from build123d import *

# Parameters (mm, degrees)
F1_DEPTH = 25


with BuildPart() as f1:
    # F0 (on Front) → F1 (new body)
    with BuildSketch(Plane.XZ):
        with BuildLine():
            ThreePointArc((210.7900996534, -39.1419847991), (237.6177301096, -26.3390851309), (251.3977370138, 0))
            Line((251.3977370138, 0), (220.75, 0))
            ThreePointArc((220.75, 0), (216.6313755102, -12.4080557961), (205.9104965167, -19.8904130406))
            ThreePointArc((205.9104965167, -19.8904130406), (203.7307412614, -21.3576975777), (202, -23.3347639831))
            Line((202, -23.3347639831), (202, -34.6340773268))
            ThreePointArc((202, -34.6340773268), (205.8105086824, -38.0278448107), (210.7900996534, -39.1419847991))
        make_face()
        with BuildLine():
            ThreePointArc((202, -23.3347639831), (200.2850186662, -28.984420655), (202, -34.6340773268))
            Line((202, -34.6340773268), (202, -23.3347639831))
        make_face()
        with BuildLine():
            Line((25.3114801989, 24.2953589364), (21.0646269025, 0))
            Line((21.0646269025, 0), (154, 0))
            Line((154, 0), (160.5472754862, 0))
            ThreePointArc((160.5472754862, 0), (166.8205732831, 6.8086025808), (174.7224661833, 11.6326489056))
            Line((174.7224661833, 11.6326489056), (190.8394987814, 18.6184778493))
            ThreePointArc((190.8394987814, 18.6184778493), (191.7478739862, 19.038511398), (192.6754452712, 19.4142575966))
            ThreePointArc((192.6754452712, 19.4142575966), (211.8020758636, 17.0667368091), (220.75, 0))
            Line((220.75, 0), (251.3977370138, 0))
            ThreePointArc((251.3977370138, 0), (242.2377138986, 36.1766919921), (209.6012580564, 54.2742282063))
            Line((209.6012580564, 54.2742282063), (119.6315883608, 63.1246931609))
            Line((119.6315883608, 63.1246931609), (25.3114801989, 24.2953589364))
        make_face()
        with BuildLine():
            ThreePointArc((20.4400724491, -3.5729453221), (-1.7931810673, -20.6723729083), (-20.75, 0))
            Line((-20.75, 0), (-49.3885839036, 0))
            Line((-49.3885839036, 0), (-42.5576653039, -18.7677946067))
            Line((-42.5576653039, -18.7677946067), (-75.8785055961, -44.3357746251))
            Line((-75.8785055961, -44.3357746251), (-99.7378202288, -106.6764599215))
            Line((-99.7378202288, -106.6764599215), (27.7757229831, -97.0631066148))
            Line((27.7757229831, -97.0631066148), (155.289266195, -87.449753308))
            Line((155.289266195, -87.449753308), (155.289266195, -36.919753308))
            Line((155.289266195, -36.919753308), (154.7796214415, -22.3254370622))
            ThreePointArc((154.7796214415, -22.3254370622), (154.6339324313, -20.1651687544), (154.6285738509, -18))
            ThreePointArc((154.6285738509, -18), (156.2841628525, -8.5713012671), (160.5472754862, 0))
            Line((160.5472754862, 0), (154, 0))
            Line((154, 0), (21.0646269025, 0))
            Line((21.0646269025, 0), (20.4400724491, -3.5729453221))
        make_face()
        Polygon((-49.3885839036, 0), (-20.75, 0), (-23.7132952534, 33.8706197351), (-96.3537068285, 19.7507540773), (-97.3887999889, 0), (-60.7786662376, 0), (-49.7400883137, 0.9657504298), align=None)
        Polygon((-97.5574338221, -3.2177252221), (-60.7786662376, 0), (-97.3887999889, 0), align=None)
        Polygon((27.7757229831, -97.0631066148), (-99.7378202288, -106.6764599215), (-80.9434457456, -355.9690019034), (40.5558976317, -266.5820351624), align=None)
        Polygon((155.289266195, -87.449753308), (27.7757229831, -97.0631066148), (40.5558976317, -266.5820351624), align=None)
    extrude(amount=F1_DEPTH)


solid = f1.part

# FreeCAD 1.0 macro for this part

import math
import FreeCAD as App
import Part
import Sketcher

V = App.Vector
Q = App.Units.Quantity

doc = App.newDocument("Part")
body = doc.addObject("PartDesign::Body", "Body")

sketch1 = doc.addObject("Sketcher::SketchObject", "Sketch")
body.addObject(sketch1)
sketch1.AttachmentSupport = (doc.XZ_Plane, [""])
sketch1.MapMode = "FlatFace"
sketch1.addGeometry(Part.ArcOfCircle(Part.Circle(V(205, 7.5, 0), V(0, 0, 1), 47), math.radians(-83), math.radians(-9)), False)
sketch1.addGeometry(Part.ArcOfCircle(Part.Circle(V(205, 7.5, 0), V(0, 0, 1), 47), math.radians(-9), math.radians(84)), False)
sketch1.addGeometry(Part.LineSegment(V(209.6, 54.3, 0), V(119.6, 63.1, 0)), False)
sketch1.addGeometry(Part.LineSegment(V(119.6, 63.1, 0), V(25.3, 24.3, 0)), False)
sketch1.addGeometry(Part.LineSegment(V(25.3, 24.3, 0), V(21.1, 0, 0)), False)
sketch1.addGeometry(Part.LineSegment(V(21.1, 0, 0), V(20.4, -3.6, 0)), False)
sketch1.addGeometry(Part.ArcOfCircle(Part.Circle(V(0, 0, 0), V(0, 0, 1), 20.8), math.radians(180), math.radians(350)), False)
sketch1.addGeometry(Part.LineSegment(V(-20.8, 0, 0), V(-23.7, 33.9, 0)), False)
sketch1.addGeometry(Part.LineSegment(V(-23.7, 33.9, 0), V(-96.4, 19.8, 0)), False)
sketch1.addGeometry(Part.LineSegment(V(-96.4, 19.8, 0), V(-97.4, 0, 0)), False)
sketch1.addGeometry(Part.LineSegment(V(-97.4, 0, 0), V(-97.6, -3.2, 0)), False)
sketch1.addGeometry(Part.LineSegment(V(-97.6, -3.2, 0), V(-49.7, 1, 0)), False)
sketch1.addGeometry(Part.LineSegment(V(-49.7, 1, 0), V(-49.4, 0, 0)), False)
sketch1.addGeometry(Part.LineSegment(V(-49.4, 0, 0), V(-42.6, -18.8, 0)), False)
sketch1.addGeometry(Part.LineSegment(V(-42.6, -18.8, 0), V(-75.9, -44.3, 0)), False)
sketch1.addGeometry(Part.LineSegment(V(-75.9, -44.3, 0), V(-99.7, -106.7, 0)), False)
sketch1.addGeometry(Part.LineSegment(V(-99.7, -106.7, 0), V(-80.9, -356, 0)), False)
sketch1.addGeometry(Part.LineSegment(V(-80.9, -356, 0), V(40.6, -266.6, 0)), False)
sketch1.addGeometry(Part.LineSegment(V(40.6, -266.6, 0), V(155.3, -87.4, 0)), False)
sketch1.addGeometry(Part.LineSegment(V(155.3, -87.4, 0), V(155.3, -36.9, 0)), False)
sketch1.addGeometry(Part.LineSegment(V(155.3, -36.9, 0), V(154.8, -22.3, 0)), False)
sketch1.addGeometry(Part.ArcOfCircle(Part.Circle(V(188, -19, 0), V(0, 0, 1), 33.4), math.radians(178.28), math.radians(185.72)), False)
sketch1.addGeometry(Part.ArcOfCircle(Part.Circle(V(188, -19, 0), V(0, 0, 1), 33.4), math.radians(145), math.radians(178)), False)
sketch1.addGeometry(Part.ArcOfCircle(Part.Circle(V(188, -19, 0), V(0, 0, 1), 33.4), math.radians(113), math.radians(145)), False)
sketch1.addGeometry(Part.LineSegment(V(174.7, 11.6, 0), V(190.8, 18.6, 0)), False)
sketch1.addGeometry(Part.ArcOfCircle(Part.Circle(V(200, 0, 0), V(0, 0, 1), 20.8), math.radians(110.67), math.radians(116.2)), False)
sketch1.addGeometry(Part.ArcOfCircle(Part.Circle(V(200, 0, 0), V(0, 0, 1), 20.8), math.radians(0), math.radians(111)), False)
sketch1.addGeometry(Part.ArcOfCircle(Part.Circle(V(200, 0, 0), V(0, 0, 1), 20.8), math.radians(-73), math.radians(0)), False)
sketch1.addGeometry(Part.ArcOfCircle(Part.Circle(V(210.4, -29, 0), V(0, 0, 1), 10.2), math.radians(117), math.radians(214)), False)
sketch1.addGeometry(Part.ArcOfCircle(Part.Circle(V(210.4, -29, 0), V(0, 0, 1), 10.2), math.radians(-146), math.radians(-88)), False)
sketch1.addConstraint(Sketcher.Constraint("Tangent", 0, 2, 1, 1))
sketch1.addConstraint(Sketcher.Constraint("Tangent", 1, 2, 2, 1))
sketch1.addConstraint(Sketcher.Constraint("Coincident", 2, 2, 3, 1))
sketch1.addConstraint(Sketcher.Constraint("Coincident", 3, 2, 4, 1))
sketch1.addConstraint(Sketcher.Constraint("Coincident", 4, 2, 5, 1))
sketch1.addConstraint(Sketcher.Constraint("Tangent", 5, 2, 6, 2))
sketch1.addConstraint(Sketcher.Constraint("Coincident", 6, 1, 7, 1))
sketch1.addConstraint(Sketcher.Constraint("Coincident", 7, 2, 8, 1))
sketch1.addConstraint(Sketcher.Constraint("Coincident", 8, 2, 9, 1))
sketch1.addConstraint(Sketcher.Constraint("Coincident", 9, 2, 10, 1))
sketch1.addConstraint(Sketcher.Constraint("Coincident", 10, 2, 11, 1))
sketch1.addConstraint(Sketcher.Constraint("Coincident", 11, 2, 12, 1))
sketch1.addConstraint(Sketcher.Constraint("Coincident", 12, 2, 13, 1))
sketch1.addConstraint(Sketcher.Constraint("Coincident", 13, 2, 14, 1))
sketch1.addConstraint(Sketcher.Constraint("Coincident", 14, 2, 15, 1))
sketch1.addConstraint(Sketcher.Constraint("Coincident", 15, 2, 16, 1))
sketch1.addConstraint(Sketcher.Constraint("Coincident", 16, 2, 17, 1))
sketch1.addConstraint(Sketcher.Constraint("Coincident", 17, 2, 18, 1))
sketch1.addConstraint(Sketcher.Constraint("Coincident", 18, 2, 19, 1))
sketch1.addConstraint(Sketcher.Constraint("Coincident", 19, 2, 20, 1))
sketch1.addConstraint(Sketcher.Constraint("Coincident", 20, 2, 21, 2))
sketch1.addConstraint(Sketcher.Constraint("Tangent", 21, 1, 22, 2))
sketch1.addConstraint(Sketcher.Constraint("Tangent", 22, 1, 23, 2))
sketch1.addConstraint(Sketcher.Constraint("Tangent", 23, 1, 24, 1))
sketch1.addConstraint(Sketcher.Constraint("Coincident", 24, 2, 25, 2))
sketch1.addConstraint(Sketcher.Constraint("Tangent", 25, 1, 26, 2))
sketch1.addConstraint(Sketcher.Constraint("Tangent", 26, 1, 27, 2))
sketch1.addConstraint(Sketcher.Constraint("Coincident", 27, 1, 28, 1))
sketch1.addConstraint(Sketcher.Constraint("Tangent", 28, 2, 29, 1))
sketch1.addConstraint(Sketcher.Constraint("Coincident", 29, 2, 0, 1))
sketch1.addConstraint(Sketcher.Constraint("Vertical", 19))
sketch1.addConstraint(Sketcher.Constraint("Coincident", 6, 3, -1, 1))
sketch1.addConstraint(Sketcher.Constraint("Coincident", 23, 3, 21, 3))
sketch1.addConstraint(Sketcher.Constraint("Coincident", 27, 3, 25, 3))
sketch1.addConstraint(Sketcher.Constraint("Equal", 0, 1))
sketch1.addConstraint(Sketcher.Constraint("Equal", 6, 25))
sketch1.addConstraint(Sketcher.Constraint("Equal", 28, 29))
sketch1.addConstraint(Sketcher.Constraint("PointOnObject", 25, 3, -1))
sketch1.addConstraint(Sketcher.Constraint("PointOnObject", 0, 2, -1))
sketch1.addConstraint(Sketcher.Constraint("PointOnObject", 4, 2, -1))
sketch1.addConstraint(Sketcher.Constraint("PointOnObject", 6, 1, -1))
sketch1.addConstraint(Sketcher.Constraint("PointOnObject", 9, 2, -1))
sketch1.addConstraint(Sketcher.Constraint("PointOnObject", 12, 2, -1))
sketch1.addConstraint(Sketcher.Constraint("PointOnObject", 22, 1, -1))
sketch1.addConstraint(Sketcher.Constraint("PointOnObject", 26, 1, -1))
sketch1.addConstraint(Sketcher.Constraint("Parallel", 4, 5))
sketch1.addConstraint(Sketcher.Constraint("Parallel", 9, 10))
sketch1.addConstraint(Sketcher.Constraint("Perpendicular", 7, 11))
sketch1.addConstraint(Sketcher.Constraint("Parallel", 12, 13))
sketch1.addConstraint(Sketcher.Constraint("Radius", 0, 47.0))
sketch1.addConstraint(Sketcher.Constraint("Angle", 7, Q("95 deg")))
sketch1.addConstraint(Sketcher.Constraint("Angle", 8, Q("-169 deg")))
sketch1.addConstraint(Sketcher.Constraint("Angle", 9, Q("-93 deg")))
sketch1.addConstraint(Sketcher.Constraint("Angle", 12, Q("-70 deg")))
sketch1.addConstraint(Sketcher.Constraint("Angle", 20, Q("92 deg")))
sketch1.addConstraint(Sketcher.Constraint("Radius", 6, 20.75))
sketch1.addConstraint(Sketcher.Constraint("Distance", 3, 102.0))
sketch1.addConstraint(Sketcher.Constraint("Distance", 7, 34.0))
sketch1.addConstraint(Sketcher.Constraint("Distance", 8, 74.0))
sketch1.addConstraint(Sketcher.Constraint("Distance", 11, 48.0))
sketch1.addConstraint(Sketcher.Constraint("Distance", 14, 42.0))
sketch1.addConstraint(Sketcher.Constraint("Distance", 16, 250.0))
sketch1.addConstraint(Sketcher.Constraint("DistanceX", -1, 1, 0, 3, 205.0))
sketch1.addConstraint(Sketcher.Constraint("DistanceX", -1, 1, 21, 3, 188.0))
sketch1.addConstraint(Sketcher.Constraint("DistanceY", 21, 3, -1, 1, 19.0))
sketch1.addConstraint(Sketcher.Constraint("DistanceX", -1, 1, 25, 3, 200.0))
sketch1.addConstraint(Sketcher.Constraint("DistanceY", 21, 1, -1, 1, 18.0))
sketch1.addConstraint(Sketcher.Constraint("DistanceX", -1, 1, 28, 2, 202.0))
sketch1.addConstraint(Sketcher.Constraint("Angle", 14, Q("-142.5 deg")))
sketch1.addConstraint(Sketcher.Constraint("DistanceY", 19, 1, 19, 2, 50.53))
sketch1.addConstraint(Sketcher.Constraint("DistanceY", -1, 1, 0, 3, 7.5))
sketch1.addConstraint(Sketcher.Constraint("DistanceY", 16, 2, -1, 1, 355.969002))
sketch1.addConstraint(Sketcher.Constraint("Radius", 21, 33.386406))
sketch1.addConstraint(Sketcher.Constraint("Radius", 28, 10.163312))
sketch1.addConstraint(Sketcher.Constraint("DistanceX", -1, 1, 24, 2, 190.839499))
sketch1.addConstraint(Sketcher.Constraint("DistanceX", -1, 1, 29, 2, 210.7901))
sketch1.addConstraint(Sketcher.Constraint("DistanceY", 5, 2, 8, 2, 23.323699))
sketch1.addConstraint(Sketcher.Constraint("Distance", 2, 90.403939))
sketch1.addConstraint(Sketcher.Constraint("Distance", 10, 3.222141))
sketch1.addConstraint(Sketcher.Constraint("Distance", 13, 19.97227))
sketch1.addConstraint(Sketcher.Constraint("Distance", 15, 66.75049))
sketch1.addConstraint(Sketcher.Constraint("Distance", 17, 150.83806))
sketch1.addConstraint(Sketcher.Constraint("DistanceX", -1, 1, 28, 3, 210.448331))
sketch1.addConstraint(Sketcher.Constraint("DistanceX", -1, 1, 1, 2, 209.601258))
sketch1.addConstraint(Sketcher.Constraint("DistanceX", 15, 2, -1, 1, 99.73782))
sketch1.addConstraint(Sketcher.Constraint("DistanceX", -1, 1, 20, 2, 154.779621))
sketch1.addConstraint(Sketcher.Constraint("DistanceY", 17, 2, 14, 2, 222.246261))
sketch1.addConstraint(Sketcher.Constraint("DistanceY", 24, 2, 25, 1, 0.79578))
sketch1.addConstraint(Sketcher.Constraint("Distance", 18, 212.725457))
pad1 = doc.addObject("PartDesign::Pad", "Pad")
body.addObject(pad1)
pad1.Profile = sketch1
pad1.Length = 25

doc.recompute()
